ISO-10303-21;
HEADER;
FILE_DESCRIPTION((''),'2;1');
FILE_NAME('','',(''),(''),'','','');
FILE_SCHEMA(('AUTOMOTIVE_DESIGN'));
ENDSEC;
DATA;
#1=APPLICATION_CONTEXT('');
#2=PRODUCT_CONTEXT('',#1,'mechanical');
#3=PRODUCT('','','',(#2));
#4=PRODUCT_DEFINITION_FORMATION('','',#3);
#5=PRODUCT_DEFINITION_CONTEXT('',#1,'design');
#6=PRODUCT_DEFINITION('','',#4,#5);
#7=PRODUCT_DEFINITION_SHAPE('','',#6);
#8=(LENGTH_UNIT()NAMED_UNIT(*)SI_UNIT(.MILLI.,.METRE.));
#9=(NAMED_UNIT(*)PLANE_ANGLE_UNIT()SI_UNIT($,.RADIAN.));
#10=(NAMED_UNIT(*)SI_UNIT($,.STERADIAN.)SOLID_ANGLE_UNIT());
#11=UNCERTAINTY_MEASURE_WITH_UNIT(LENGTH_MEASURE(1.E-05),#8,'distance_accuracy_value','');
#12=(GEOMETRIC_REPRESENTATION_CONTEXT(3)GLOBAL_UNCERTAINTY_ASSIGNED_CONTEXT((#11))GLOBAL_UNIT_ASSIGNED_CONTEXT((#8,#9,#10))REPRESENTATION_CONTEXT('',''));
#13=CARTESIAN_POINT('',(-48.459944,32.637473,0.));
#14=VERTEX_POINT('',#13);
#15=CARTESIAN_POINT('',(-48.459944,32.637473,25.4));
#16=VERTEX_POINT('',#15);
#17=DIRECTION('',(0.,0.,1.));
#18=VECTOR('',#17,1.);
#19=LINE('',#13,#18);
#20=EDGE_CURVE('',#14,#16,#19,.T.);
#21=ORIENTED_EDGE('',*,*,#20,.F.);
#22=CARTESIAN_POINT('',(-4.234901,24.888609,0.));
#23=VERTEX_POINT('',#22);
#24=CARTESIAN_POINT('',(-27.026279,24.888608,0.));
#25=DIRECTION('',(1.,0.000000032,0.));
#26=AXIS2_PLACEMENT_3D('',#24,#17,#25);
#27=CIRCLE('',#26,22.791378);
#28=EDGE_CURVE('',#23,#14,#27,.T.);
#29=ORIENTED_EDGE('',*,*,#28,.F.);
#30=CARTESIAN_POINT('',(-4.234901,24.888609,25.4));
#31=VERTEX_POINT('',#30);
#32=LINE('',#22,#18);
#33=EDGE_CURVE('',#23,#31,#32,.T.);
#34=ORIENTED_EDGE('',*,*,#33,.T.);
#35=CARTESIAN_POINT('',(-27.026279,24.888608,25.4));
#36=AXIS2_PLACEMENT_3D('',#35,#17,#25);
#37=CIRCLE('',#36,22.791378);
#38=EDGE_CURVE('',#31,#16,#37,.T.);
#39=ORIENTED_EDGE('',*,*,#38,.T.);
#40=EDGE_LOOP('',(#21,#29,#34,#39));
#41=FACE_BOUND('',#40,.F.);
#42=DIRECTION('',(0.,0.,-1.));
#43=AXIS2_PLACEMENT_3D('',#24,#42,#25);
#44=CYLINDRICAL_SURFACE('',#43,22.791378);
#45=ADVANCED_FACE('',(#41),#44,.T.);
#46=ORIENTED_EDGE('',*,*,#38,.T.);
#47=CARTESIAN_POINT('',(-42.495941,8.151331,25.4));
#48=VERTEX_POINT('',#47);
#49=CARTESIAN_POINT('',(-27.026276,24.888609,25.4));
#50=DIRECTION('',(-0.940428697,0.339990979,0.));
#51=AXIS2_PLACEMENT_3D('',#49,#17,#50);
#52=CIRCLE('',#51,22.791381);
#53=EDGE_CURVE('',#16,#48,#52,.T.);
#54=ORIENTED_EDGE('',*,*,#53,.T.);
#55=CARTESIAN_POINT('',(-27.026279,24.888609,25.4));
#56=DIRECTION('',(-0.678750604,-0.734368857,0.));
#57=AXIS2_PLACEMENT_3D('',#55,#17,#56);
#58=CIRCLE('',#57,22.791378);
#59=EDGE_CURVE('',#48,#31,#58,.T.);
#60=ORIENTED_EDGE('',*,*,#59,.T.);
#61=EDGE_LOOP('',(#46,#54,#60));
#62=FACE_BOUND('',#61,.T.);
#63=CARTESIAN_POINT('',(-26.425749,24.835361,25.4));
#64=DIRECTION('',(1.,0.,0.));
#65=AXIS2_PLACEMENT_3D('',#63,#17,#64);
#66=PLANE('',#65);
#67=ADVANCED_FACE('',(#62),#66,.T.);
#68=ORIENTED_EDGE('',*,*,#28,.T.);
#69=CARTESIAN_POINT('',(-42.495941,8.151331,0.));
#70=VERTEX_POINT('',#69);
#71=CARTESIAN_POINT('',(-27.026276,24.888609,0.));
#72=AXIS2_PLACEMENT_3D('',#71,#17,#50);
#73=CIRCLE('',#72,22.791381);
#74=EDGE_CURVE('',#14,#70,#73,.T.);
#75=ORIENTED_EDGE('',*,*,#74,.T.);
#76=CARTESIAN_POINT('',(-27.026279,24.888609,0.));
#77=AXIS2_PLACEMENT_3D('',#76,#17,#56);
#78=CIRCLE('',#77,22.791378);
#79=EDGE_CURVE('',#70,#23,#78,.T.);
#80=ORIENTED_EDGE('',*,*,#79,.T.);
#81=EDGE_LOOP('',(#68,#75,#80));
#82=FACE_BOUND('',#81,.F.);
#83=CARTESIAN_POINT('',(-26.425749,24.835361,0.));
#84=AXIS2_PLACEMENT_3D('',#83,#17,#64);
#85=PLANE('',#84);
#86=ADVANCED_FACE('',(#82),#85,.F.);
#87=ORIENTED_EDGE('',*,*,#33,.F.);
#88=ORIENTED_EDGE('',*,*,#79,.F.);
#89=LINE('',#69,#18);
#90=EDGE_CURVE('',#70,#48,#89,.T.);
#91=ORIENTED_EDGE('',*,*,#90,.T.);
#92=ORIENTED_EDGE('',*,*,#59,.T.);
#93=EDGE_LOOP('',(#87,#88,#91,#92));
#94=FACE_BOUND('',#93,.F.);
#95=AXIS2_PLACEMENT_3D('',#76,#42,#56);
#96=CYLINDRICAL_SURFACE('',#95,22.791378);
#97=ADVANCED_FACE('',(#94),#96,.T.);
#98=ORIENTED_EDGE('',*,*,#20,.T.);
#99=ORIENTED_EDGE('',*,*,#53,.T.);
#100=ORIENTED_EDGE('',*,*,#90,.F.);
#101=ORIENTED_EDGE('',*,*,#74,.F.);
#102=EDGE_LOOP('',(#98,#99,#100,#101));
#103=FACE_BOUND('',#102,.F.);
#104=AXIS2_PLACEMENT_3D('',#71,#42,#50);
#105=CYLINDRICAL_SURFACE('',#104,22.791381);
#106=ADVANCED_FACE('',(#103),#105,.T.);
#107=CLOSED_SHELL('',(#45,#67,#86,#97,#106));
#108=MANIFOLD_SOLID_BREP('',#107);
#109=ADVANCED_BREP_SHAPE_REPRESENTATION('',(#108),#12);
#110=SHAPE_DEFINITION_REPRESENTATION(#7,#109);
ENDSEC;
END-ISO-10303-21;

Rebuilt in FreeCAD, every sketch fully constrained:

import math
import FreeCAD as App
import Part
import Sketcher

V = App.Vector
Q = App.Units.Quantity

doc = App.newDocument("Part")
body = doc.addObject("PartDesign::Body", "Body")

# Sketch on XY plane
sketch1 = body.newObject("Sketcher::SketchObject", "Sketch")
sketch1.AttachmentSupport = (doc.getObject("XY_Plane"), [""])
sketch1.MapMode = "FlatFace"
sketch1.addGeometry([
    Part.ArcOfCircle(Part.Circle(V(-27.026279, 24.888609, 0), V(0, 0, 1), 22.791378), math.radians(-132.746088), math.radians(-0.000001)),
    Part.ArcOfCircle(Part.Circle(V(-27.026279, 24.888608, 0), V(0, 0, 1), 22.791378), math.radians(0.000002), math.radians(160.123671)),
    Part.ArcOfCircle(Part.Circle(V(-27.026276, 24.888609, 0), V(0, 0, 1), 22.791381), math.radians(160.123676), math.radians(227.253905)),
], False)
sketch1.addConstraint([
    Sketcher.Constraint("Tangent", 0, 2, 1, 1),
    Sketcher.Constraint("Tangent", 1, 2, 2, 1),
    Sketcher.Constraint("Tangent", 2, 2, 0, 1),
    Sketcher.Constraint("Horizontal", 2, 3, 0, 2),
    Sketcher.Constraint("Radius", 0, 22.791378),
    Sketcher.Constraint("DistanceX", 0, 2, -1, 1, 4.234901),
    Sketcher.Constraint("DistanceY", -1, 1, 0, 3, 24.888609),
    Sketcher.Constraint("DistanceX", 2, 2, -1, 1, 42.495941),
    Sketcher.Constraint("DistanceX", 1, 2, 2, 3, 21.433668),
])
pad1 = body.newObject("PartDesign::Pad", "Pad")
pad1.Profile = sketch1
pad1.Length = Q("1 in")

doc.recompute()
